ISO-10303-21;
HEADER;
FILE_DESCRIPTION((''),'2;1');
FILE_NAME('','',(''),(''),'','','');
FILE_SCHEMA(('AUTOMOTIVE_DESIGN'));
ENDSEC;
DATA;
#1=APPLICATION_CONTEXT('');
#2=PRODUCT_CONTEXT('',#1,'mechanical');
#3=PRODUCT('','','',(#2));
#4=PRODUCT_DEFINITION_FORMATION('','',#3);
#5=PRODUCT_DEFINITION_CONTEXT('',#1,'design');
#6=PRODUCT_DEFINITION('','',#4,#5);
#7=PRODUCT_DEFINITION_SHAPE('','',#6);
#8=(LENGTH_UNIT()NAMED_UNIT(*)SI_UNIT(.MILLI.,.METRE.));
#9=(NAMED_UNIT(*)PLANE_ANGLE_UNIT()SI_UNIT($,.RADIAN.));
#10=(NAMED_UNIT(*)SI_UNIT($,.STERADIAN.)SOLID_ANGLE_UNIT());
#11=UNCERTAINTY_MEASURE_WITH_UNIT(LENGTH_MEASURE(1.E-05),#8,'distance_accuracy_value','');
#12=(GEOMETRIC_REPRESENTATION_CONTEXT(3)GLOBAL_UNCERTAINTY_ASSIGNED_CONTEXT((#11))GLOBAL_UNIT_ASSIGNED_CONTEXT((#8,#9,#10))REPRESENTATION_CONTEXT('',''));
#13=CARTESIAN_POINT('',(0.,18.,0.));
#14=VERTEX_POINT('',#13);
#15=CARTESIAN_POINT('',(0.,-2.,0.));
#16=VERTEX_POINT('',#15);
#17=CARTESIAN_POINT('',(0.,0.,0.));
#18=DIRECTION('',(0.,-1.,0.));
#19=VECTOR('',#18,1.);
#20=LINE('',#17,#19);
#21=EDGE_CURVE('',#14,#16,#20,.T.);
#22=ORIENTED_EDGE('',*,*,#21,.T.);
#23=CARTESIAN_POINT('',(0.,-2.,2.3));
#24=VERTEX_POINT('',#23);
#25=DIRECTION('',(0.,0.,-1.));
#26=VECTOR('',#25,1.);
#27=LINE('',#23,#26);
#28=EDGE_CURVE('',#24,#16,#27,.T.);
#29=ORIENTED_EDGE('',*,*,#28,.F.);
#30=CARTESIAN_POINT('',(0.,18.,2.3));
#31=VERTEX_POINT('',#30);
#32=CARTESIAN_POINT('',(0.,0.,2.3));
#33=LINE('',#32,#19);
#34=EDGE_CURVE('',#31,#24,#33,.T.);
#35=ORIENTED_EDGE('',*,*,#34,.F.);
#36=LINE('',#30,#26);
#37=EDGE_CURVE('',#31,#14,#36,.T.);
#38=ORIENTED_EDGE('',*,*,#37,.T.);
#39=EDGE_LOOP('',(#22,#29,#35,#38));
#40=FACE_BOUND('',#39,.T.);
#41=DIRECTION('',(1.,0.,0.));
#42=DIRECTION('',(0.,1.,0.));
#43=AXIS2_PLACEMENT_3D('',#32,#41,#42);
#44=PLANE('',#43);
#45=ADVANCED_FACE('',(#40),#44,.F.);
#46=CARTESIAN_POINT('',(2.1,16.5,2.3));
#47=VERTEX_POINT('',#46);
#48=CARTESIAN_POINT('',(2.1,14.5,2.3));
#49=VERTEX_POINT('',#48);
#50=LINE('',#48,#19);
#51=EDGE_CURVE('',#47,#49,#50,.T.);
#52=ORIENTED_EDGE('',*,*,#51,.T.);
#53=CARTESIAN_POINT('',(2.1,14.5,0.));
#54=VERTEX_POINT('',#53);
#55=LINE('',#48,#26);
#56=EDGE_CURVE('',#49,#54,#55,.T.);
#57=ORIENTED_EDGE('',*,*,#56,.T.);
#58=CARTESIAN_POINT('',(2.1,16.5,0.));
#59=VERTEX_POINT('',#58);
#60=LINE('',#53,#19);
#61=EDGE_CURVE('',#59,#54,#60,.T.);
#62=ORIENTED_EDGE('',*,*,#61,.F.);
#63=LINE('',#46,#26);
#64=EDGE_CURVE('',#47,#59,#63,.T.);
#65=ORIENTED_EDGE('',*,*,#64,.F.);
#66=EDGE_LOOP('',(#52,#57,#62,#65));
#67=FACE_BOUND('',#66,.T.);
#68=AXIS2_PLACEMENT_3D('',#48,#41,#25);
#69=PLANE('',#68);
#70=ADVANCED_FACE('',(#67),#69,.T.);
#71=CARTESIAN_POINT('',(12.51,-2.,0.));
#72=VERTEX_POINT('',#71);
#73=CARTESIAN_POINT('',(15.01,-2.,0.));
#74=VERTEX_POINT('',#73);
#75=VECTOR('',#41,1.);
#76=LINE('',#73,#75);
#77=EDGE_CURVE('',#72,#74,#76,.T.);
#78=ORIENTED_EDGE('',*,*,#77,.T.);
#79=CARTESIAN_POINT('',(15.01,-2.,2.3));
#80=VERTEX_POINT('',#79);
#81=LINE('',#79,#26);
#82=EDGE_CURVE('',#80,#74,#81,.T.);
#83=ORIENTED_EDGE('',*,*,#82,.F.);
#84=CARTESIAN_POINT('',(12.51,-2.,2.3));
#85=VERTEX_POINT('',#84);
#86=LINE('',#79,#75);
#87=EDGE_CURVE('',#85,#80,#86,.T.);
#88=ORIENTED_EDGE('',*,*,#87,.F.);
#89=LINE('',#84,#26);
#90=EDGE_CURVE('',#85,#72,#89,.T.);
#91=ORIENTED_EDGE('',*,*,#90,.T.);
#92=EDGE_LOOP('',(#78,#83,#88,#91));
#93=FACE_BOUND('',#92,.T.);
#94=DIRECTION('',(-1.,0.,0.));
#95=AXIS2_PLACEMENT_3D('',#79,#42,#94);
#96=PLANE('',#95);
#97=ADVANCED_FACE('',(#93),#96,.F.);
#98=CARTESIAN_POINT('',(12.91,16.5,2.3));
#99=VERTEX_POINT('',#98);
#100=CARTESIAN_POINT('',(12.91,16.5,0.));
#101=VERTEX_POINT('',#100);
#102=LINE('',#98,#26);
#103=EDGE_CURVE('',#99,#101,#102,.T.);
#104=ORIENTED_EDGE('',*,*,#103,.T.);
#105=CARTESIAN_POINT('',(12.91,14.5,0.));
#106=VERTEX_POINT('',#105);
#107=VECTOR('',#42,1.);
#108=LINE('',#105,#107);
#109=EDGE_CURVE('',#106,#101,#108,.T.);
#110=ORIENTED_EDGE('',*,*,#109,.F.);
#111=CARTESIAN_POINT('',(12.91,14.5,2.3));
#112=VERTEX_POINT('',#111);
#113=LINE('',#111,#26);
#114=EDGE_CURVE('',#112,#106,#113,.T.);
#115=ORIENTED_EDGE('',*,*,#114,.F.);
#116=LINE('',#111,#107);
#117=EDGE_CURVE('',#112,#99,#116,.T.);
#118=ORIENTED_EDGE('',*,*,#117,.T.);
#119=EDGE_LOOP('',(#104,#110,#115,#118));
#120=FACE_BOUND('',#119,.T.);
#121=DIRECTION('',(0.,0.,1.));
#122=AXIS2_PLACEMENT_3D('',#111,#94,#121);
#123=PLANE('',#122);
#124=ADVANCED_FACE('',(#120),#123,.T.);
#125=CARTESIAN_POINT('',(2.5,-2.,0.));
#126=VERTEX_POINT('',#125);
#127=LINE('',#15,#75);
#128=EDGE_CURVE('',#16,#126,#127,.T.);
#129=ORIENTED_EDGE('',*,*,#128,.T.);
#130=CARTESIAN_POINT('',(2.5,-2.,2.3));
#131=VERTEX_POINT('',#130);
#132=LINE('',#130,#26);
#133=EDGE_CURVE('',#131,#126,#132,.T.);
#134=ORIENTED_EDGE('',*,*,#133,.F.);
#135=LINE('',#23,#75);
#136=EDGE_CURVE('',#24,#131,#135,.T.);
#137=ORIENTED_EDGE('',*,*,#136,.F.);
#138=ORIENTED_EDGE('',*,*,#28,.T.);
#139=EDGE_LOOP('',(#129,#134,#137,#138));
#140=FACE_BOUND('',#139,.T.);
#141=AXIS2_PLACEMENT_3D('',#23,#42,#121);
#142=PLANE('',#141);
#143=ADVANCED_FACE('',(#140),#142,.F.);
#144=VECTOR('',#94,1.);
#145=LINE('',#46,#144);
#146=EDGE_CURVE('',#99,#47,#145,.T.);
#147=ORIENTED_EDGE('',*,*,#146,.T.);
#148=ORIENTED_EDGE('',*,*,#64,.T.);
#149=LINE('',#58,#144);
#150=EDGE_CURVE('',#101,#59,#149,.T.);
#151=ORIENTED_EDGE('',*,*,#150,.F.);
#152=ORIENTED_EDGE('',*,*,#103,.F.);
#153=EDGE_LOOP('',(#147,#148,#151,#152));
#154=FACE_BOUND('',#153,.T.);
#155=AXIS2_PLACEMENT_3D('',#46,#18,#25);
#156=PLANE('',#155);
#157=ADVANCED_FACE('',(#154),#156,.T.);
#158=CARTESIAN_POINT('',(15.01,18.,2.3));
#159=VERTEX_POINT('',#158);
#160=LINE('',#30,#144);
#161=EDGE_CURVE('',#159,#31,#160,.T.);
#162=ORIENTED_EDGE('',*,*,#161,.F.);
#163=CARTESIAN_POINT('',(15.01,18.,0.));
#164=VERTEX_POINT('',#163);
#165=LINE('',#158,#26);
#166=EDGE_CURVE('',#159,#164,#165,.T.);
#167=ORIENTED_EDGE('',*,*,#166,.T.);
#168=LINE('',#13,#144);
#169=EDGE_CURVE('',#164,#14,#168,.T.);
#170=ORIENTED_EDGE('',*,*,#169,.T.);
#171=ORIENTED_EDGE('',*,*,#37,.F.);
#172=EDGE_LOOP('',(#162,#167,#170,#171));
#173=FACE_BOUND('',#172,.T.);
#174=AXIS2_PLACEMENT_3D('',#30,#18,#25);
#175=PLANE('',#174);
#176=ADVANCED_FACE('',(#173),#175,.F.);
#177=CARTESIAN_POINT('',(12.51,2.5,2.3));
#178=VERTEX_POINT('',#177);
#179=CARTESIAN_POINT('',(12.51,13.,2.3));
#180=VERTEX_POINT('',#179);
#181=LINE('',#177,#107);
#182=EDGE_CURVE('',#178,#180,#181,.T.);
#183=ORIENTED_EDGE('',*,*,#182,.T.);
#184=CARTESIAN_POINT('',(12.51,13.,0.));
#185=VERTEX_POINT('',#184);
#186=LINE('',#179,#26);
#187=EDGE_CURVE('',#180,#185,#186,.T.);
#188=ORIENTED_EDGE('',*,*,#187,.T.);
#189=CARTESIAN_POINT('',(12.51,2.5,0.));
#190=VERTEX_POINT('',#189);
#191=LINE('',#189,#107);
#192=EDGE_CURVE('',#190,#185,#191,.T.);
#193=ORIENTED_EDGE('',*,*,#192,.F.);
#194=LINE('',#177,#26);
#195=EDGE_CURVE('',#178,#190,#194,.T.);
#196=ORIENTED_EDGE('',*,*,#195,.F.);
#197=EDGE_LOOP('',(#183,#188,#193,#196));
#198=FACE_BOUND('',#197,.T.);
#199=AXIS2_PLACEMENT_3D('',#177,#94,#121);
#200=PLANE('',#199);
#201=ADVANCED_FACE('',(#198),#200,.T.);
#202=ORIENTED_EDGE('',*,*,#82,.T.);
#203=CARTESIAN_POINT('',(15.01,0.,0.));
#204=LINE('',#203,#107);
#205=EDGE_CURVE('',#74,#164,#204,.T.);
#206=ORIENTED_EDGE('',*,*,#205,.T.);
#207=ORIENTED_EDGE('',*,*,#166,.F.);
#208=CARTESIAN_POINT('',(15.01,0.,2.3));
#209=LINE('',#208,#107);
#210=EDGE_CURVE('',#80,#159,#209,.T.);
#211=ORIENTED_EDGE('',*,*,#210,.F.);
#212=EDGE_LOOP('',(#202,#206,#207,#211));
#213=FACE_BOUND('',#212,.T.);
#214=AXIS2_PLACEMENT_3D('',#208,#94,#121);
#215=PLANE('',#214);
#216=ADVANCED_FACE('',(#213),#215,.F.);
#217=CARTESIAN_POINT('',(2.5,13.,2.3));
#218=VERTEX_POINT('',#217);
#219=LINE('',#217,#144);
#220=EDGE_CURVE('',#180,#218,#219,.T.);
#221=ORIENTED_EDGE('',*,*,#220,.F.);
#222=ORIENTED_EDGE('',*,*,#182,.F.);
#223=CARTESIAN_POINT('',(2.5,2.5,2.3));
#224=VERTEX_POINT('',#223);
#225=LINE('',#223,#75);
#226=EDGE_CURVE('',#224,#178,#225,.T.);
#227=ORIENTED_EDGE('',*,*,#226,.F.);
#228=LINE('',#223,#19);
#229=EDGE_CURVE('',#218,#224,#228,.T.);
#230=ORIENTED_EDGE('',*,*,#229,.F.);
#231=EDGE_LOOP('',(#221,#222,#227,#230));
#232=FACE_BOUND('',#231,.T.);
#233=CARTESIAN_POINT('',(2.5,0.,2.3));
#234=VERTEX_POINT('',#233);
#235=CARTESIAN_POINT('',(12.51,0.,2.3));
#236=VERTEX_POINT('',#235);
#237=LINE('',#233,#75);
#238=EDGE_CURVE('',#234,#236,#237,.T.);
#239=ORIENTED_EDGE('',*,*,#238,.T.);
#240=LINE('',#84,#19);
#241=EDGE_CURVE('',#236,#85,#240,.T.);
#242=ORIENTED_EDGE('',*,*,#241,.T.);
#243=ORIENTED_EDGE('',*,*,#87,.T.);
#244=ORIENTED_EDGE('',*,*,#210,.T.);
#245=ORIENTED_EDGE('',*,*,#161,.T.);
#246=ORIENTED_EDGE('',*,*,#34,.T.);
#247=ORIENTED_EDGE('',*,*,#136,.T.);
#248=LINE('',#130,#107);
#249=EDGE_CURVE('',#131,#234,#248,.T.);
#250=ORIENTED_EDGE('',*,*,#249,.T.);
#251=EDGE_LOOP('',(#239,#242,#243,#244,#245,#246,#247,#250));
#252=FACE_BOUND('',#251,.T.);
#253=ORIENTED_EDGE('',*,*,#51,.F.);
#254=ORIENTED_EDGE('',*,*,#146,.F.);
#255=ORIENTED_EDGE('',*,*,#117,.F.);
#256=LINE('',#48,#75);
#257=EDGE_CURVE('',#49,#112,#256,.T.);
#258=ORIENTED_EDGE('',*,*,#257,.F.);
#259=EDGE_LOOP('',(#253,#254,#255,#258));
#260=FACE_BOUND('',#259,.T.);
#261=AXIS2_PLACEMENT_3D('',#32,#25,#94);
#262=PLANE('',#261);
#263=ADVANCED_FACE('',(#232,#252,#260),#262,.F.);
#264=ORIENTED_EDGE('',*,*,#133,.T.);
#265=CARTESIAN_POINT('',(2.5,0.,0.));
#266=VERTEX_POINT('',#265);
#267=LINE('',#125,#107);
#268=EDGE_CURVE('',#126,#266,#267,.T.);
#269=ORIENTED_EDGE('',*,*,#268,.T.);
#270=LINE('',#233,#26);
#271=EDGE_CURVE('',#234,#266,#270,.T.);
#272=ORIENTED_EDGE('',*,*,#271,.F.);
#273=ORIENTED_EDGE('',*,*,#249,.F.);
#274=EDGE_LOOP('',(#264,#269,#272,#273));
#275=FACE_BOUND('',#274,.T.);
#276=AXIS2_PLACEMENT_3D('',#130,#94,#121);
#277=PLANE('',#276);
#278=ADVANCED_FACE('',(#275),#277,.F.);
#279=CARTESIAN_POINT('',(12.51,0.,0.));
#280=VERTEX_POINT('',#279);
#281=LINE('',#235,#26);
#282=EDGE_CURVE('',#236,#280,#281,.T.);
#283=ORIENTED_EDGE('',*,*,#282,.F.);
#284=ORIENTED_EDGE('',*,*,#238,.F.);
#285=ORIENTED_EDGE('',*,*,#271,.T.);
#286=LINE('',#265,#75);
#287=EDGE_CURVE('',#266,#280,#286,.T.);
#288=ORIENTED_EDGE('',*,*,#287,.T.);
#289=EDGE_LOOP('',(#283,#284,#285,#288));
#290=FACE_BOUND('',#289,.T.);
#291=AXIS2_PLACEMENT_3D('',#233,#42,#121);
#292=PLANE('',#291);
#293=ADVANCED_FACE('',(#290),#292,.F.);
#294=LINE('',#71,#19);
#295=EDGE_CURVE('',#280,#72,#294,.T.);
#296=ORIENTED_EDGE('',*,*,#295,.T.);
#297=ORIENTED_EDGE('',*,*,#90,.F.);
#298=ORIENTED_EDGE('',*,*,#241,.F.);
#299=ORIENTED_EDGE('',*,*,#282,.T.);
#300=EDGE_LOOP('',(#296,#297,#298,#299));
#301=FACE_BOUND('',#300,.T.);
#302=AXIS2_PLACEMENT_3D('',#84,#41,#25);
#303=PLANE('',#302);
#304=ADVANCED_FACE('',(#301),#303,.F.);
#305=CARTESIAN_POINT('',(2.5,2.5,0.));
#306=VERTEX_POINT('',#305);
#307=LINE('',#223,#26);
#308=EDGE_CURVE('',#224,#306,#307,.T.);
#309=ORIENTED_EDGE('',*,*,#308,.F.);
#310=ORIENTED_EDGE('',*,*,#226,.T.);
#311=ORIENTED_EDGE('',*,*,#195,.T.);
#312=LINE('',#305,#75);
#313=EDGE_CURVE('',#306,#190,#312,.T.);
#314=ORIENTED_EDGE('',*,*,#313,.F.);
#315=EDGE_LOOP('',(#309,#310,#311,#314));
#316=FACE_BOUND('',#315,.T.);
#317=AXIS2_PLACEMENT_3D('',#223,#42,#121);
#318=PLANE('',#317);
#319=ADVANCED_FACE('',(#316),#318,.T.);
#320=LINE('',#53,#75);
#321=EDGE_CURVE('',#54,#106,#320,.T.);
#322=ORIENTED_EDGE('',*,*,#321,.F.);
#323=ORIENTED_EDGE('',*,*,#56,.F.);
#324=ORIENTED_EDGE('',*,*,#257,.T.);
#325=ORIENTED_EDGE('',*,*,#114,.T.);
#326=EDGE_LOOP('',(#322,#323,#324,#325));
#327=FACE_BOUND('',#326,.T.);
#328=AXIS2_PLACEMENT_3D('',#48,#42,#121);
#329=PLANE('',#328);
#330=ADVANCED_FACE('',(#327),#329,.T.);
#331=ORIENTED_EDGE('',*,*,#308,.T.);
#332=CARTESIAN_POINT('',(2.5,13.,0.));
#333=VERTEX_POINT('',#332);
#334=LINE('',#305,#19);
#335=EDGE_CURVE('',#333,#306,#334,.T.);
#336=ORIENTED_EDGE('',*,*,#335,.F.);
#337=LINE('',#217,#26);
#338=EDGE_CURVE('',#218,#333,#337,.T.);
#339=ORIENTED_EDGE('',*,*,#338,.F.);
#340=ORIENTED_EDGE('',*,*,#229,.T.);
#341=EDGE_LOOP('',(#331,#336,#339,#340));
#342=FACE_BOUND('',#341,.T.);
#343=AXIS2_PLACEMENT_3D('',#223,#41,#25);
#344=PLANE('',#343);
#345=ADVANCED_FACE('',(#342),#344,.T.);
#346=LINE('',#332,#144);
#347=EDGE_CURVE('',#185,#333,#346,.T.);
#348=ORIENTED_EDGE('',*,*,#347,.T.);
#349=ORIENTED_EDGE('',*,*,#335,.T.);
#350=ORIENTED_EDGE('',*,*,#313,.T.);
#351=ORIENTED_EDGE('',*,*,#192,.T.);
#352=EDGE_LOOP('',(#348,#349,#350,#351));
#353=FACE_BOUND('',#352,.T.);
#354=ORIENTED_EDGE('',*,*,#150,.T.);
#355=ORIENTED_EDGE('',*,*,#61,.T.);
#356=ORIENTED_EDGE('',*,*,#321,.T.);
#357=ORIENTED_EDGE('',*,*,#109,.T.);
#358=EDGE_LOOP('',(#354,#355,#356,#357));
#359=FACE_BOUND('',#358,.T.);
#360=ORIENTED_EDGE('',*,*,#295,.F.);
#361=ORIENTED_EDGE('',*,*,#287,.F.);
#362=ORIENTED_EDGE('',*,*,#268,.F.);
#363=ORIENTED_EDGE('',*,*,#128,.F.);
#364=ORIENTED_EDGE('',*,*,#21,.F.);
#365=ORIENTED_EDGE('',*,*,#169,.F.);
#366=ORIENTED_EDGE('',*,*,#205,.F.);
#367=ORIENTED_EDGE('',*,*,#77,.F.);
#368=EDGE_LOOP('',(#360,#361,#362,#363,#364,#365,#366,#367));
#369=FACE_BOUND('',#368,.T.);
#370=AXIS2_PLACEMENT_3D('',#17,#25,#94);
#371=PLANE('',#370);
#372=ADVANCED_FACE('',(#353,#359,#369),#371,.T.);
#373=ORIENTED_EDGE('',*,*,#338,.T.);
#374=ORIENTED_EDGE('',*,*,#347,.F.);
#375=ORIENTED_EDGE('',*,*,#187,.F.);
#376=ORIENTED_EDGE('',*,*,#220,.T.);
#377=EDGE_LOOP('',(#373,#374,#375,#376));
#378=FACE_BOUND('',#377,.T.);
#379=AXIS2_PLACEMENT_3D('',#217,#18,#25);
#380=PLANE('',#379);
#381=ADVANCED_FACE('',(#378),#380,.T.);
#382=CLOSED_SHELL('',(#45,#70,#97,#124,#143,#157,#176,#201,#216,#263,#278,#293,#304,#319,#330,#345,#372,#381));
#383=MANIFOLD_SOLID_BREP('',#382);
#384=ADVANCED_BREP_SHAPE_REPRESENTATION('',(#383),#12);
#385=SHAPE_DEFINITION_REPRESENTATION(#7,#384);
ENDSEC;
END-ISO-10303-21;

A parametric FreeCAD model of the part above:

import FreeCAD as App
import Part
import Sketcher
from FreeCAD import Vector


def add_polygon(sketch, points):
    """Adds a closed chain of lines whose ends are joined by coincident constraints."""
    first, n = sketch.GeometryCount, len(points)
    for a, b in zip(points, points[1:] + points[:1]):
        sketch.addGeometry(Part.LineSegment(App.Vector(*a, 0), App.Vector(*b, 0)), False)
    for i in range(n):
        sketch.addConstraint(Sketcher.Constraint("Coincident", first + i, 2, first + (i + 1) % n, 1))

doc = App.newDocument("Part")
params = doc.addObject("Spreadsheet::Sheet", "Params")
for row, (alias, value) in enumerate([
    ("sketch1_height", "2 mm"),
    ("sketch1_height2", "20 mm"),
    ("sketch1_width", "2.5 mm"),
    ("sketch1_height3", "10.5 mm"),
    ("sketch1_width2", "10.01 mm"),
    ("pad1_length", "2.3 mm"),
], start=1):
    params.set(f"A{row}", alias)
    params.set(f"B{row}", "=" + value)
    params.setAlias(f"B{row}", alias)

body = doc.addObject("PartDesign::Body", "Body")

# Sketch on XY plane
sketch1 = body.newObject("Sketcher::SketchObject", "Sketch")
sketch1.AttachmentSupport = (doc.getObject("XY_Plane"), [""])
sketch1.MapMode = "FlatFace"
add_polygon(sketch1, [(0, -2), (2.5, -2), (2.5, 0), (12.51, 0), (12.51, -2), (15.01, -2), (15.01, 18), (0, 18)])  # lines 0-7
add_polygon(sketch1, [(12.51, 2.5), (2.5, 2.5), (2.5, 13), (12.51, 13)])  # lines 8-11
add_polygon(sketch1, [(12.91, 14.5), (2.1, 14.5), (2.1, 16.5), (12.91, 16.5)])  # lines 12-15
sketch1.addConstraint([
    Sketcher.Constraint("Horizontal", 0),
    Sketcher.Constraint("Vertical", 1),
    Sketcher.Constraint("Horizontal", 2),
    Sketcher.Constraint("Vertical", 3),
    Sketcher.Constraint("Horizontal", 4),
    Sketcher.Constraint("Vertical", 5),
    Sketcher.Constraint("Horizontal", 6),
    Sketcher.Constraint("Vertical", 7),
    Sketcher.Constraint("Horizontal", 8),
    Sketcher.Constraint("Vertical", 9),
    Sketcher.Constraint("Horizontal", 10),
    Sketcher.Constraint("Vertical", 11),
    Sketcher.Constraint("Horizontal", 12),
    Sketcher.Constraint("Vertical", 13),
    Sketcher.Constraint("Horizontal", 14),
    Sketcher.Constraint("Vertical", 15),
    Sketcher.Constraint("PointOnObject", 1, 2, -1),
    Sketcher.Constraint("PointOnObject", 6, 2, -2),
    Sketcher.Constraint("Horizontal", 0, 2, 3, 2),
    Sketcher.Constraint("Vertical", 1, 2, 8, 2),
    Sketcher.Constraint("Vertical", 3, 2, 10, 2),
    Sketcher.Constraint("Equal", 0, 4),
    Sketcher.Constraint("Equal", 3, 13),
    Sketcher.Constraint("DistanceY", 1, 1, 1, 2, 2.0),
    Sketcher.Constraint("DistanceY", 5, 1, 5, 2, 20.0),
    Sketcher.Constraint("DistanceX", 0, 1, 0, 2, 2.5),
    Sketcher.Constraint("DistanceY", 9, 1, 9, 2, 10.5),
    Sketcher.Constraint("DistanceY", -1, 1, 9, 2, 13.0),
    Sketcher.Constraint("DistanceY", 8, 2, 12, 2, 12.0),
    Sketcher.Constraint("DistanceX", 2, 1, 2, 2, 10.01),
    Sketcher.Constraint("DistanceX", 12, 2, 12, 1, 10.81),
    Sketcher.Constraint("DistanceX", -1, 1, 12, 2, 2.1),
])
sketch1.setExpression("Constraints[39]", "Params.sketch1_height")
sketch1.setExpression("Constraints[40]", "Params.sketch1_height2")
sketch1.setExpression("Constraints[41]", "Params.sketch1_width")
sketch1.setExpression("Constraints[42]", "Params.sketch1_height3")
sketch1.setExpression("Constraints[45]", "Params.sketch1_width2")
pad1 = body.newObject("PartDesign::Pad", "Pad")
pad1.Profile = sketch1
pad1.setExpression("Length", "Params.pad1_length")

doc.recompute()
